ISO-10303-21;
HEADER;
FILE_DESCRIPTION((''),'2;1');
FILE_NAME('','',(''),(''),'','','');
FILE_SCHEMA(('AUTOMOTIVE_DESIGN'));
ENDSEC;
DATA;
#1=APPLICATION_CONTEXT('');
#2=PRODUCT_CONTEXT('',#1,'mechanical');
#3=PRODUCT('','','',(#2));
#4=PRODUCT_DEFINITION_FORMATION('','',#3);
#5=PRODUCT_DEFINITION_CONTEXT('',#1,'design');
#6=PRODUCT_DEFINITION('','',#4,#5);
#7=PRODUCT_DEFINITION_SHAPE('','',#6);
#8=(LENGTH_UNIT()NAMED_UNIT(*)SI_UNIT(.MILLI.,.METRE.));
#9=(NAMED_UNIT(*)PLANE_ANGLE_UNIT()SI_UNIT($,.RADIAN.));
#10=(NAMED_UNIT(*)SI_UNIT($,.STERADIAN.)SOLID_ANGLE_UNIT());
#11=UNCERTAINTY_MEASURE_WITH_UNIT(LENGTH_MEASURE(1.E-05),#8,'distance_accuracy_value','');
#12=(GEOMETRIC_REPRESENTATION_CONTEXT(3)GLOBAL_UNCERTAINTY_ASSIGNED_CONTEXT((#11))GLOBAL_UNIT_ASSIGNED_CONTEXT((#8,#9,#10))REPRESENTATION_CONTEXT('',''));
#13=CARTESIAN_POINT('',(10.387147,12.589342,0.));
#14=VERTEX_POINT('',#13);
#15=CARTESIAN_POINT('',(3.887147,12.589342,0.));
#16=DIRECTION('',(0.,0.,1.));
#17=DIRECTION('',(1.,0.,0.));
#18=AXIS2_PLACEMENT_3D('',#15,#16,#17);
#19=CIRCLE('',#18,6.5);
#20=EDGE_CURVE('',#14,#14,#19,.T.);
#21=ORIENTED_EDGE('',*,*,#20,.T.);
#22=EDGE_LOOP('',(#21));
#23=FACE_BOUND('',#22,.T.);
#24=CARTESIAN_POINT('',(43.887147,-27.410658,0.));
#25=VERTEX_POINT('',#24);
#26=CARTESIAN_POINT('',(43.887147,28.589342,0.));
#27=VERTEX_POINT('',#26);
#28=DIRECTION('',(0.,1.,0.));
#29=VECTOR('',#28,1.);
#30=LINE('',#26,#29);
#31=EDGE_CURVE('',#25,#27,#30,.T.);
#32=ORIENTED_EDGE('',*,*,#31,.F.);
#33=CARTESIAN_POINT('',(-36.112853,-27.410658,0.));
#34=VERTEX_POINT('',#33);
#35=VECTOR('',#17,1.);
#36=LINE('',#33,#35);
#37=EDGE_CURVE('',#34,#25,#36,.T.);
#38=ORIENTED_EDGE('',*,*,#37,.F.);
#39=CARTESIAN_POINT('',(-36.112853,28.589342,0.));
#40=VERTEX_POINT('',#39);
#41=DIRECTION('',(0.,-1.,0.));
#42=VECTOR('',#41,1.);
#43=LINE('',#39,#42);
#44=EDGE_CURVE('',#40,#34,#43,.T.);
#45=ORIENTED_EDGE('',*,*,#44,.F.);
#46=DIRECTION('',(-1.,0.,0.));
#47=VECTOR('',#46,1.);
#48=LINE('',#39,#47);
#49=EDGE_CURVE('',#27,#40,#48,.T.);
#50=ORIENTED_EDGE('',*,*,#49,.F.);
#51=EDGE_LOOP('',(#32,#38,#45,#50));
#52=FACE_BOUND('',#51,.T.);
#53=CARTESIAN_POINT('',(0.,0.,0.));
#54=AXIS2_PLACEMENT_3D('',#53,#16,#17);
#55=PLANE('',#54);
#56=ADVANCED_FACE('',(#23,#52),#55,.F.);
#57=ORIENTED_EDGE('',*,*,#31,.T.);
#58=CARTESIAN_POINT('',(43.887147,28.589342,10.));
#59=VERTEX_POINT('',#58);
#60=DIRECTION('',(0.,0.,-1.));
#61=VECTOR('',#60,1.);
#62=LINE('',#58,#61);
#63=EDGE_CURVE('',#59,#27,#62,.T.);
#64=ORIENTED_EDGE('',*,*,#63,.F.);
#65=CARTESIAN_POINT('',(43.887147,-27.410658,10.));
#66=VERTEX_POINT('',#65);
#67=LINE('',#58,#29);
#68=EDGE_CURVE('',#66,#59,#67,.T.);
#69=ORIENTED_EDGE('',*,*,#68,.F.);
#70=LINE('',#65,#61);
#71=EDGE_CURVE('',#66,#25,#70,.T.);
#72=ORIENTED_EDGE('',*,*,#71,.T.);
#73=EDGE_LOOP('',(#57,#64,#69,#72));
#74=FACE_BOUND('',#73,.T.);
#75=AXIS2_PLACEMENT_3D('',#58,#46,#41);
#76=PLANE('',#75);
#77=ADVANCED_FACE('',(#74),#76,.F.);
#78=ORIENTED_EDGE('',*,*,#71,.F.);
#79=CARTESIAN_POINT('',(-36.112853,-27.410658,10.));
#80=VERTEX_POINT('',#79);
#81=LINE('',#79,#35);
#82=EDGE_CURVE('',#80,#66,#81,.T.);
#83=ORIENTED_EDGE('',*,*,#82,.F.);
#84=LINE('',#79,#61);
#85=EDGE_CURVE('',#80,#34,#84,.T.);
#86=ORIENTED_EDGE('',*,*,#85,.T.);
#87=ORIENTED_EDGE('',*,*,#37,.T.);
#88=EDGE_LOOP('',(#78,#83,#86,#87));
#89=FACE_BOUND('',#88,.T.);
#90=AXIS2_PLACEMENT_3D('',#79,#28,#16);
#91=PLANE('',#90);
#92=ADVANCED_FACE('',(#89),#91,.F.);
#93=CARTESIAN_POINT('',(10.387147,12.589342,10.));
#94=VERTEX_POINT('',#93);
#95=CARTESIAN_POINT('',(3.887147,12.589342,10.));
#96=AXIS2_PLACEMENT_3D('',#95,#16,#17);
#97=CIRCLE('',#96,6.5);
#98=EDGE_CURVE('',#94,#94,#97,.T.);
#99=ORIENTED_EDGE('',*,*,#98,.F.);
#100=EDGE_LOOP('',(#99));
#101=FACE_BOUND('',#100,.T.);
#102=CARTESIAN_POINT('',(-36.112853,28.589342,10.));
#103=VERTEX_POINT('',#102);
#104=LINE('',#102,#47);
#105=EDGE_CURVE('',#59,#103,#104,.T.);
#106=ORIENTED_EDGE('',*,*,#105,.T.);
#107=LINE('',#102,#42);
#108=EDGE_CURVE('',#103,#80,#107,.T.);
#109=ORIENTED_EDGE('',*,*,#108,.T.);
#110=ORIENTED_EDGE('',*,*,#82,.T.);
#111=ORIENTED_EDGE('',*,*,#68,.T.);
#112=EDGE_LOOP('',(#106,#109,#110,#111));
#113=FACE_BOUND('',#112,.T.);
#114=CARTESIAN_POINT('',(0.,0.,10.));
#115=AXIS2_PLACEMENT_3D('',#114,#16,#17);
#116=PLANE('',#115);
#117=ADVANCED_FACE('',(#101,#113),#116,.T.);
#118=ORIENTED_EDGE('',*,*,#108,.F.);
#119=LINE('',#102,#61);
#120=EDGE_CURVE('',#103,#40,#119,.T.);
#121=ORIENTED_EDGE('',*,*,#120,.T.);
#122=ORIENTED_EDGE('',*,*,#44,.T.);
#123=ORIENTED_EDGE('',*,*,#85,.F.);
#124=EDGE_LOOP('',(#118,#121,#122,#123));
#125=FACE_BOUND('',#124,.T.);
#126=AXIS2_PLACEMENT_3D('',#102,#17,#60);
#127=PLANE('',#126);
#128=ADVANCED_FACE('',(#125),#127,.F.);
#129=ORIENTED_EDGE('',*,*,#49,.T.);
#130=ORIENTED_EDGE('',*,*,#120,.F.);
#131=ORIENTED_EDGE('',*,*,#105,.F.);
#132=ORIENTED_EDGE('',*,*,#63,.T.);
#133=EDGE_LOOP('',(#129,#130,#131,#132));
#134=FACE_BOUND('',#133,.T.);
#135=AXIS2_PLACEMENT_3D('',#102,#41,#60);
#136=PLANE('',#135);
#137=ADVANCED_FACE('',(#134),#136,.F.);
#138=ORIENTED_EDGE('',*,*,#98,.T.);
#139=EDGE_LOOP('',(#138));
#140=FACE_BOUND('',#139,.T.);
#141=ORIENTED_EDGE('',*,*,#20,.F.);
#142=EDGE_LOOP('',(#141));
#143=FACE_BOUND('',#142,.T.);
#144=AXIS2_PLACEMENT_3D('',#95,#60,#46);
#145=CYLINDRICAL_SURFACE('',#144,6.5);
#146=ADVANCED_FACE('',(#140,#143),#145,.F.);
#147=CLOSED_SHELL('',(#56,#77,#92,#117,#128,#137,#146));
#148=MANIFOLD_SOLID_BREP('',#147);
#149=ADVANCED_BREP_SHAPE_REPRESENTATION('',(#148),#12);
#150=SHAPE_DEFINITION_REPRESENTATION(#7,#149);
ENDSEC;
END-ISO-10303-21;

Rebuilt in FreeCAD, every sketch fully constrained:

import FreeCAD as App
import Part
import Sketcher
from FreeCAD import Vector
Q = App.Units.Quantity

doc = App.newDocument("Part")
params = doc.addObject("Spreadsheet::Sheet", "Params")
for row, (alias, value) in enumerate([
    ("sketch1_diameter", "13 mm"),
    ("sketch1_width", "80 mm"),
    ("sketch1_height", "56 mm"),
    ("pad1_length", "10 mm"),
], start=1):
    params.set(f"A{row}", alias)
    params.set(f"B{row}", "=" + value)
    params.setAlias(f"B{row}", alias)

body = doc.addObject("PartDesign::Body", "Body")

# Sketch on XY plane
sketch1 = body.newObject("Sketcher::SketchObject", "Sketch")
sketch1.AttachmentSupport = (doc.getObject("XY_Plane"), [""])
sketch1.MapMode = "FlatFace"
sketch1.addGeometry(Part.LineSegment(Vector(-36.112853, 28.589342, 0), Vector(-36.112853, -27.410658, 0)), False)
sketch1.addGeometry(Part.LineSegment(Vector(-36.112853, -27.410658, 0), Vector(43.887147, -27.410658, 0)), False)
sketch1.addGeometry(Part.LineSegment(Vector(43.887147, -27.410658, 0), Vector(43.887147, 28.589342, 0)), False)
sketch1.addGeometry(Part.LineSegment(Vector(43.887147, 28.589342, 0), Vector(-36.112853, 28.589342, 0)), False)
sketch1.addGeometry(Part.Circle(Vector(3.887147, 12.589342, 0), Vector(0, 0, 1), 6.5), False)
sketch1.addConstraint(Sketcher.Constraint("Coincident", 0, 2, 1, 1))
sketch1.addConstraint(Sketcher.Constraint("Coincident", 1, 2, 2, 1))
sketch1.addConstraint(Sketcher.Constraint("Coincident", 2, 2, 3, 1))
sketch1.addConstraint(Sketcher.Constraint("Coincident", 3, 2, 0, 1))
sketch1.addConstraint(Sketcher.Constraint("Vertical", 0))
sketch1.addConstraint(Sketcher.Constraint("Horizontal", 1))
sketch1.addConstraint(Sketcher.Constraint("Vertical", 2))
sketch1.addConstraint(Sketcher.Constraint("Horizontal", 3))
sketch1.addConstraint(Sketcher.Constraint("Diameter", 4, Q("13 mm")))
sketch1.addConstraint(Sketcher.Constraint("DistanceX", 1, 1, 1, 2, Q("80 mm")))
sketch1.addConstraint(Sketcher.Constraint("DistanceY", 0, 2, 0, 1, Q("56 mm")))
sketch1.addConstraint(Sketcher.Constraint("DistanceX", 0, 2, 4, 3, Q("40 mm")))
sketch1.addConstraint(Sketcher.Constraint("DistanceY", 0, 2, 4, 3, Q("40 mm")))
sketch1.addConstraint(Sketcher.Constraint("DistanceY", -1, 1, 4, 3, Q("12.589342 mm")))
sketch1.addConstraint(Sketcher.Constraint("DistanceX", -1, 1, 4, 3, Q("3.887147 mm")))
sketch1.setExpression("Constraints[8]", "Params.sketch1_diameter")
sketch1.setExpression("Constraints[9]", "Params.sketch1_width")
sketch1.setExpression("Constraints[10]", "Params.sketch1_height")
pad1 = body.newObject("PartDesign::Pad", "Pad")
pad1.Profile = sketch1
pad1.setExpression("Length", "Params.pad1_length")

doc.recompute()
